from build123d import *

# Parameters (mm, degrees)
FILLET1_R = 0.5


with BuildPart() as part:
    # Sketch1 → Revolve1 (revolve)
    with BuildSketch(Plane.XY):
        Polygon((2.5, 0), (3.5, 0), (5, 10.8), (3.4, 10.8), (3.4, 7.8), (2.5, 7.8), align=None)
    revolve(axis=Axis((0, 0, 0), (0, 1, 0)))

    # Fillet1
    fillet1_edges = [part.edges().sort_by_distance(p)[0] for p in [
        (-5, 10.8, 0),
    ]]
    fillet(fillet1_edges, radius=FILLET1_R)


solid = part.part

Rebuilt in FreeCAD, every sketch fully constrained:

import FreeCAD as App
import Part
import Sketcher


def edges_at(feature, points):
    """Names of the edges that pass closest to the given points."""
    edges = feature.Shape.Edges
    near = lambda p: min(range(len(edges)), key=lambda i: edges[i].distToShape(Part.Vertex(*p))[0])
    return sorted({f"Edge{near(p) + 1}" for p in points})


def add_polygon(sketch, points):
    """Adds a closed chain of lines whose ends are joined by coincident constraints."""
    first, n = sketch.GeometryCount, len(points)
    for a, b in zip(points, points[1:] + points[:1]):
        sketch.addGeometry(Part.LineSegment(App.Vector(*a, 0), App.Vector(*b, 0)), False)
    for i in range(n):
        sketch.addConstraint(Sketcher.Constraint("Coincident", first + i, 2, first + (i + 1) % n, 1))

doc = App.newDocument("Part")
body = doc.addObject("PartDesign::Body", "Body")

# Sketch on XY plane
sketch1 = body.newObject("Sketcher::SketchObject", "Sketch")
sketch1.AttachmentSupport = (doc.getObject("XY_Plane"), [""])
sketch1.MapMode = "FlatFace"
add_polygon(sketch1, [(2.5, 0), (3.5, 0), (5, 10.8), (3.4, 10.8), (3.4, 7.8), (2.5, 7.8)])  # lines 0-5
sketch1.addConstraint([
    Sketcher.Constraint("Horizontal", 0),
    Sketcher.Constraint("Horizontal", 2),
    Sketcher.Constraint("Vertical", 3),
    Sketcher.Constraint("Horizontal", 4),
    Sketcher.Constraint("Vertical", 5),
    Sketcher.Constraint("PointOnObject", 0, 2, -1),
    Sketcher.Constraint("DistanceX", 0, 1, 0, 2, 1.0),
    Sketcher.Constraint("DistanceY", 3, 2, 3, 1, 3.0),
    Sketcher.Constraint("DistanceX", 2, 2, 2, 1, 1.6),
    Sketcher.Constraint("DistanceX", 4, 2, 4, 1, 0.9),
    Sketcher.Constraint("DistanceY", 5, 2, 5, 1, 7.8),
    Sketcher.Constraint("DistanceX", -1, 1, 1, 2, 5.0),
])
revolution = body.newObject("PartDesign::Revolution", "Revolution")
revolution.Profile = sketch1
revolution.ReferenceAxis = (sketch1, ["V_Axis"])
revolution.Angle = 360
doc.recompute()

fillet = body.newObject("PartDesign::Fillet", "Fillet")
fillet.Base = (revolution, edges_at(revolution, [(-5, 10.8, 0)]))
fillet.Radius = 0.5

doc.recompute()
